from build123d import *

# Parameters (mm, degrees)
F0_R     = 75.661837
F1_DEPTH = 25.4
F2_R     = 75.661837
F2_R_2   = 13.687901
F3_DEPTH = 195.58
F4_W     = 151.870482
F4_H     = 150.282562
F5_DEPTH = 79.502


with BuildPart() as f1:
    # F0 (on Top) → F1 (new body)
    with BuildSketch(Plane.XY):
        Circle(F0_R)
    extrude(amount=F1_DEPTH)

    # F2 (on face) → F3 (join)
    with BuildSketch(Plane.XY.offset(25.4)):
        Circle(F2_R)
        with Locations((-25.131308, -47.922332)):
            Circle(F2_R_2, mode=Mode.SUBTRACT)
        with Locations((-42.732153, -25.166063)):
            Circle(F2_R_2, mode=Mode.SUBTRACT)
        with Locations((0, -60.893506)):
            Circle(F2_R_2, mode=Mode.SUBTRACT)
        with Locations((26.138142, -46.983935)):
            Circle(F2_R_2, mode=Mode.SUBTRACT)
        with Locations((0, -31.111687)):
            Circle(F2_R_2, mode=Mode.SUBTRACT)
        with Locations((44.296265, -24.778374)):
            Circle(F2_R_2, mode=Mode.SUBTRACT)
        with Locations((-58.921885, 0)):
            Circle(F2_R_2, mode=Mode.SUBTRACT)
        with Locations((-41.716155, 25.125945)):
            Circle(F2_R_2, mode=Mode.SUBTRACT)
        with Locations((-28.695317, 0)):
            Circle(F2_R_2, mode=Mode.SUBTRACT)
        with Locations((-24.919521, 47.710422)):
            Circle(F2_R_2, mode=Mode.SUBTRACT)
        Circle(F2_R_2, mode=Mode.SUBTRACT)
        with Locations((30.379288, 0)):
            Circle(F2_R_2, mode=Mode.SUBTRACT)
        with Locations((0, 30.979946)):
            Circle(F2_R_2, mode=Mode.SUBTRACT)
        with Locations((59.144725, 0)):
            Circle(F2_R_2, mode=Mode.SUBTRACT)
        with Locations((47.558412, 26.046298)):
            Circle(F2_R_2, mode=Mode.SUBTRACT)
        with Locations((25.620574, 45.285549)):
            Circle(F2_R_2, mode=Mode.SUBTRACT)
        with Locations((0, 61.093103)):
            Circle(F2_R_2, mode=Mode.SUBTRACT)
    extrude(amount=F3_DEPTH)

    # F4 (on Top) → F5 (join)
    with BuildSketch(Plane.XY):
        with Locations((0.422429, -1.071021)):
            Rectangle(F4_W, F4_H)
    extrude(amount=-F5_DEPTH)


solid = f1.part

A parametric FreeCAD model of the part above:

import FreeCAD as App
import Part
import Sketcher
from FreeCAD import Vector
Q = App.Units.Quantity


def add_polygon(sketch, points):
    """Adds a closed chain of lines whose ends are joined by coincident constraints."""
    first, n = sketch.GeometryCount, len(points)
    for a, b in zip(points, points[1:] + points[:1]):
        sketch.addGeometry(Part.LineSegment(App.Vector(*a, 0), App.Vector(*b, 0)), False)
    for i in range(n):
        sketch.addConstraint(Sketcher.Constraint("Coincident", first + i, 2, first + (i + 1) % n, 1))

doc = App.newDocument("Part")
body = doc.addObject("PartDesign::Body", "Body")

sketch1 = doc.addObject("Sketcher::SketchObject", "Sketch")
body.addObject(sketch1)
sketch1.AttachmentSupport = (doc.XY_Plane, [""])
sketch1.MapMode = "FlatFace"
sketch1.addGeometry(Part.Circle(Vector(0, 0, 0), Vector(0, 0, 1), 76), False)
sketch1.addConstraint([
    Sketcher.Constraint("Coincident", 0, 3, -1, 1),
    Sketcher.Constraint("Diameter", 0, Q("151.323674 mm")),
])
pad1 = doc.addObject("PartDesign::Pad", "Pad")
body.addObject(pad1)
pad1.Profile = sketch1
pad1.Length = Q("1 in")

sketch2 = doc.addObject("Sketcher::SketchObject", "Sketch001")
body.addObject(sketch2)
sketch2.AttachmentSupport = (doc.XY_Plane, [""])
sketch2.MapMode = "FlatFace"
sketch2.AttachmentOffset = App.Placement(Vector(0, 0, 1 * 25.4), App.Rotation())
sketch2.addGeometry([
    Part.Circle(Vector(0, 0, 0), Vector(0, 0, 1), 76),
    Part.Circle(Vector(0, -61, 0), Vector(0, 0, 1), 14),
    Part.Circle(Vector(-25, -48, 0), Vector(0, 0, 1), 14),
    Part.Circle(Vector(-43, -25, 0), Vector(0, 0, 1), 14),
    Part.Circle(Vector(-59, 0, 0), Vector(0, 0, 1), 14),
    Part.Circle(Vector(0, -31, 0), Vector(0, 0, 1), 14),
    Part.Circle(Vector(-29, 0, 0), Vector(0, 0, 1), 14),
    Part.Circle(Vector(0, 0, 0), Vector(0, 0, 1), 14),
    Part.Circle(Vector(26, -47, 0), Vector(0, 0, 1), 14),
    Part.Circle(Vector(30, 0, 0), Vector(0, 0, 1), 14),
    Part.Circle(Vector(44, -25, 0), Vector(0, 0, 1), 14),
    Part.Circle(Vector(59, 0, 0), Vector(0, 0, 1), 14),
    Part.Circle(Vector(-42, 25, 0), Vector(0, 0, 1), 14),
    Part.Circle(Vector(0, 31, 0), Vector(0, 0, 1), 14),
    Part.Circle(Vector(-25, 48, 0), Vector(0, 0, 1), 14),
    Part.Circle(Vector(0, 61, 0), Vector(0, 0, 1), 14),
    Part.Circle(Vector(48, 26, 0), Vector(0, 0, 1), 14),
    Part.Circle(Vector(26, 45, 0), Vector(0, 0, 1), 14),
], False)
sketch2.addConstraint([
    Sketcher.Constraint("Coincident", 0, 3, -1, 1),
    Sketcher.Constraint("Coincident", 7, 3, -1, 1),
    Sketcher.Constraint("Equal", 1, 2),
    Sketcher.Constraint("Equal", 2, 3),
    Sketcher.Constraint("Equal", 3, 4),
    Sketcher.Constraint("Equal", 4, 5),
    Sketcher.Constraint("Equal", 5, 6),
    Sketcher.Constraint("Equal", 6, 7),
    Sketcher.Constraint("Equal", 7, 8),
    Sketcher.Constraint("Equal", 8, 9),
    Sketcher.Constraint("Equal", 9, 10),
    Sketcher.Constraint("Equal", 10, 11),
    Sketcher.Constraint("Equal", 11, 12),
    Sketcher.Constraint("Equal", 12, 13),
    Sketcher.Constraint("Equal", 13, 14),
    Sketcher.Constraint("Equal", 14, 15),
    Sketcher.Constraint("Equal", 15, 16),
    Sketcher.Constraint("Equal", 16, 17),
    Sketcher.Constraint("PointOnObject", 1, 3, -2),
    Sketcher.Constraint("PointOnObject", 4, 3, -1),
    Sketcher.Constraint("PointOnObject", 5, 3, -2),
    Sketcher.Constraint("PointOnObject", 6, 3, -1),
    Sketcher.Constraint("PointOnObject", 9, 3, -1),
    Sketcher.Constraint("PointOnObject", 11, 3, -1),
    Sketcher.Constraint("PointOnObject", 13, 3, -2),
    Sketcher.Constraint("PointOnObject", 15, 3, -2),
    Sketcher.Constraint("Diameter", 1, Q("27.375802 mm")),
    Sketcher.Constraint("DistanceX", 3, 3, 12, 3, Q("0.0399999 in")),
    Sketcher.Constraint("Diameter", 0, Q("151.323674 mm")),
    Sketcher.Constraint("DistanceY", -1, 1, 16, 3, Q("26.046298 mm")),
    Sketcher.Constraint("DistanceY", 12, 3, 13, 3, Q("5.854001 mm")),
    Sketcher.Constraint("DistanceX", 2, 3, -1, 1, Q("25.131308 mm")),
    Sketcher.Constraint("DistanceY", 2, 3, -1, 1, Q("47.922332 mm")),
    Sketcher.Constraint("DistanceX", -1, 1, 8, 3, Q("26.138142 mm")),
    Sketcher.Constraint("DistanceX", 14, 3, -1, 1, Q("24.919521 mm")),
    Sketcher.Constraint("DistanceX", -1, 1, 16, 3, Q("47.558412 mm")),
    Sketcher.Constraint("DistanceY", -1, 1, 17, 3, Q("45.285549 mm")),
    Sketcher.Constraint("DistanceY", 2, 3, 3, 3, Q("22.756269 mm")),
    Sketcher.Constraint("DistanceY", 1, 3, 5, 3, Q("29.781819 mm")),
    Sketcher.Constraint("DistanceX", 4, 3, 6, 3, Q("30.226568 mm")),
    Sketcher.Constraint("DistanceX", 6, 3, 2, 3, Q("3.564009 mm")),
    Sketcher.Constraint("DistanceY", 1, 3, 8, 3, Q("13.909571 mm")),
    Sketcher.Constraint("DistanceY", 8, 3, 10, 3, Q("22.205561 mm")),
    Sketcher.Constraint("DistanceX", 10, 3, 11, 3, Q("14.84846 mm")),
    Sketcher.Constraint("DistanceX", 12, 3, 6, 3, Q("13.020838 mm")),
    Sketcher.Constraint("DistanceY", 3, 3, 12, 3, Q("50.292008 mm")),
    Sketcher.Constraint("DistanceY", 14, 3, 15, 3, Q("13.382681 mm")),
    Sketcher.Constraint("DistanceY", 1, 3, -1, 1, Q("60.893506 mm")),
    Sketcher.Constraint("DistanceX", -1, 1, 9, 3, Q("30.379288 mm")),
    Sketcher.Constraint("DistanceX", -1, 1, 10, 3, Q("44.296265 mm")),
    Sketcher.Constraint("DistanceY", -1, 1, 14, 3, Q("47.710422 mm")),
    Sketcher.Constraint("DistanceX", -1, 1, 17, 3, Q("25.620574 mm")),
])
pad2 = doc.addObject("PartDesign::Pad", "Pad001")
body.addObject(pad2)
pad2.Profile = sketch2
pad2.Length = Q("7.7 in")

sketch3 = doc.addObject("Sketcher::SketchObject", "Sketch002")
body.addObject(sketch3)
sketch3.AttachmentSupport = (doc.XY_Plane, [""])
sketch3.MapMode = "FlatFace"
add_polygon(sketch3, [(-76, 74), (-76, -76), (76, -76), (76, 74)])
sketch3.addConstraint([
    Sketcher.Constraint("Vertical", 0),
    Sketcher.Constraint("Horizontal", 1),
    Sketcher.Constraint("Vertical", 2),
    Sketcher.Constraint("Horizontal", 3),
    Sketcher.Constraint("DistanceX", 1, 1, 1, 2, Q("151.870482 mm")),
    Sketcher.Constraint("DistanceY", 0, 2, 0, 1, Q("150.282562 mm")),
    Sketcher.Constraint("DistanceY", 0, 2, -1, 1, Q("76.212302 mm")),
    Sketcher.Constraint("DistanceX", 0, 2, -1, 1, Q("75.512812 mm")),
])
pad3 = doc.addObject("PartDesign::Pad", "Pad002")
body.addObject(pad3)
pad3.Profile = sketch3
pad3.Length = Q("3.13 in")
pad3.Reversed = True

doc.recompute()
